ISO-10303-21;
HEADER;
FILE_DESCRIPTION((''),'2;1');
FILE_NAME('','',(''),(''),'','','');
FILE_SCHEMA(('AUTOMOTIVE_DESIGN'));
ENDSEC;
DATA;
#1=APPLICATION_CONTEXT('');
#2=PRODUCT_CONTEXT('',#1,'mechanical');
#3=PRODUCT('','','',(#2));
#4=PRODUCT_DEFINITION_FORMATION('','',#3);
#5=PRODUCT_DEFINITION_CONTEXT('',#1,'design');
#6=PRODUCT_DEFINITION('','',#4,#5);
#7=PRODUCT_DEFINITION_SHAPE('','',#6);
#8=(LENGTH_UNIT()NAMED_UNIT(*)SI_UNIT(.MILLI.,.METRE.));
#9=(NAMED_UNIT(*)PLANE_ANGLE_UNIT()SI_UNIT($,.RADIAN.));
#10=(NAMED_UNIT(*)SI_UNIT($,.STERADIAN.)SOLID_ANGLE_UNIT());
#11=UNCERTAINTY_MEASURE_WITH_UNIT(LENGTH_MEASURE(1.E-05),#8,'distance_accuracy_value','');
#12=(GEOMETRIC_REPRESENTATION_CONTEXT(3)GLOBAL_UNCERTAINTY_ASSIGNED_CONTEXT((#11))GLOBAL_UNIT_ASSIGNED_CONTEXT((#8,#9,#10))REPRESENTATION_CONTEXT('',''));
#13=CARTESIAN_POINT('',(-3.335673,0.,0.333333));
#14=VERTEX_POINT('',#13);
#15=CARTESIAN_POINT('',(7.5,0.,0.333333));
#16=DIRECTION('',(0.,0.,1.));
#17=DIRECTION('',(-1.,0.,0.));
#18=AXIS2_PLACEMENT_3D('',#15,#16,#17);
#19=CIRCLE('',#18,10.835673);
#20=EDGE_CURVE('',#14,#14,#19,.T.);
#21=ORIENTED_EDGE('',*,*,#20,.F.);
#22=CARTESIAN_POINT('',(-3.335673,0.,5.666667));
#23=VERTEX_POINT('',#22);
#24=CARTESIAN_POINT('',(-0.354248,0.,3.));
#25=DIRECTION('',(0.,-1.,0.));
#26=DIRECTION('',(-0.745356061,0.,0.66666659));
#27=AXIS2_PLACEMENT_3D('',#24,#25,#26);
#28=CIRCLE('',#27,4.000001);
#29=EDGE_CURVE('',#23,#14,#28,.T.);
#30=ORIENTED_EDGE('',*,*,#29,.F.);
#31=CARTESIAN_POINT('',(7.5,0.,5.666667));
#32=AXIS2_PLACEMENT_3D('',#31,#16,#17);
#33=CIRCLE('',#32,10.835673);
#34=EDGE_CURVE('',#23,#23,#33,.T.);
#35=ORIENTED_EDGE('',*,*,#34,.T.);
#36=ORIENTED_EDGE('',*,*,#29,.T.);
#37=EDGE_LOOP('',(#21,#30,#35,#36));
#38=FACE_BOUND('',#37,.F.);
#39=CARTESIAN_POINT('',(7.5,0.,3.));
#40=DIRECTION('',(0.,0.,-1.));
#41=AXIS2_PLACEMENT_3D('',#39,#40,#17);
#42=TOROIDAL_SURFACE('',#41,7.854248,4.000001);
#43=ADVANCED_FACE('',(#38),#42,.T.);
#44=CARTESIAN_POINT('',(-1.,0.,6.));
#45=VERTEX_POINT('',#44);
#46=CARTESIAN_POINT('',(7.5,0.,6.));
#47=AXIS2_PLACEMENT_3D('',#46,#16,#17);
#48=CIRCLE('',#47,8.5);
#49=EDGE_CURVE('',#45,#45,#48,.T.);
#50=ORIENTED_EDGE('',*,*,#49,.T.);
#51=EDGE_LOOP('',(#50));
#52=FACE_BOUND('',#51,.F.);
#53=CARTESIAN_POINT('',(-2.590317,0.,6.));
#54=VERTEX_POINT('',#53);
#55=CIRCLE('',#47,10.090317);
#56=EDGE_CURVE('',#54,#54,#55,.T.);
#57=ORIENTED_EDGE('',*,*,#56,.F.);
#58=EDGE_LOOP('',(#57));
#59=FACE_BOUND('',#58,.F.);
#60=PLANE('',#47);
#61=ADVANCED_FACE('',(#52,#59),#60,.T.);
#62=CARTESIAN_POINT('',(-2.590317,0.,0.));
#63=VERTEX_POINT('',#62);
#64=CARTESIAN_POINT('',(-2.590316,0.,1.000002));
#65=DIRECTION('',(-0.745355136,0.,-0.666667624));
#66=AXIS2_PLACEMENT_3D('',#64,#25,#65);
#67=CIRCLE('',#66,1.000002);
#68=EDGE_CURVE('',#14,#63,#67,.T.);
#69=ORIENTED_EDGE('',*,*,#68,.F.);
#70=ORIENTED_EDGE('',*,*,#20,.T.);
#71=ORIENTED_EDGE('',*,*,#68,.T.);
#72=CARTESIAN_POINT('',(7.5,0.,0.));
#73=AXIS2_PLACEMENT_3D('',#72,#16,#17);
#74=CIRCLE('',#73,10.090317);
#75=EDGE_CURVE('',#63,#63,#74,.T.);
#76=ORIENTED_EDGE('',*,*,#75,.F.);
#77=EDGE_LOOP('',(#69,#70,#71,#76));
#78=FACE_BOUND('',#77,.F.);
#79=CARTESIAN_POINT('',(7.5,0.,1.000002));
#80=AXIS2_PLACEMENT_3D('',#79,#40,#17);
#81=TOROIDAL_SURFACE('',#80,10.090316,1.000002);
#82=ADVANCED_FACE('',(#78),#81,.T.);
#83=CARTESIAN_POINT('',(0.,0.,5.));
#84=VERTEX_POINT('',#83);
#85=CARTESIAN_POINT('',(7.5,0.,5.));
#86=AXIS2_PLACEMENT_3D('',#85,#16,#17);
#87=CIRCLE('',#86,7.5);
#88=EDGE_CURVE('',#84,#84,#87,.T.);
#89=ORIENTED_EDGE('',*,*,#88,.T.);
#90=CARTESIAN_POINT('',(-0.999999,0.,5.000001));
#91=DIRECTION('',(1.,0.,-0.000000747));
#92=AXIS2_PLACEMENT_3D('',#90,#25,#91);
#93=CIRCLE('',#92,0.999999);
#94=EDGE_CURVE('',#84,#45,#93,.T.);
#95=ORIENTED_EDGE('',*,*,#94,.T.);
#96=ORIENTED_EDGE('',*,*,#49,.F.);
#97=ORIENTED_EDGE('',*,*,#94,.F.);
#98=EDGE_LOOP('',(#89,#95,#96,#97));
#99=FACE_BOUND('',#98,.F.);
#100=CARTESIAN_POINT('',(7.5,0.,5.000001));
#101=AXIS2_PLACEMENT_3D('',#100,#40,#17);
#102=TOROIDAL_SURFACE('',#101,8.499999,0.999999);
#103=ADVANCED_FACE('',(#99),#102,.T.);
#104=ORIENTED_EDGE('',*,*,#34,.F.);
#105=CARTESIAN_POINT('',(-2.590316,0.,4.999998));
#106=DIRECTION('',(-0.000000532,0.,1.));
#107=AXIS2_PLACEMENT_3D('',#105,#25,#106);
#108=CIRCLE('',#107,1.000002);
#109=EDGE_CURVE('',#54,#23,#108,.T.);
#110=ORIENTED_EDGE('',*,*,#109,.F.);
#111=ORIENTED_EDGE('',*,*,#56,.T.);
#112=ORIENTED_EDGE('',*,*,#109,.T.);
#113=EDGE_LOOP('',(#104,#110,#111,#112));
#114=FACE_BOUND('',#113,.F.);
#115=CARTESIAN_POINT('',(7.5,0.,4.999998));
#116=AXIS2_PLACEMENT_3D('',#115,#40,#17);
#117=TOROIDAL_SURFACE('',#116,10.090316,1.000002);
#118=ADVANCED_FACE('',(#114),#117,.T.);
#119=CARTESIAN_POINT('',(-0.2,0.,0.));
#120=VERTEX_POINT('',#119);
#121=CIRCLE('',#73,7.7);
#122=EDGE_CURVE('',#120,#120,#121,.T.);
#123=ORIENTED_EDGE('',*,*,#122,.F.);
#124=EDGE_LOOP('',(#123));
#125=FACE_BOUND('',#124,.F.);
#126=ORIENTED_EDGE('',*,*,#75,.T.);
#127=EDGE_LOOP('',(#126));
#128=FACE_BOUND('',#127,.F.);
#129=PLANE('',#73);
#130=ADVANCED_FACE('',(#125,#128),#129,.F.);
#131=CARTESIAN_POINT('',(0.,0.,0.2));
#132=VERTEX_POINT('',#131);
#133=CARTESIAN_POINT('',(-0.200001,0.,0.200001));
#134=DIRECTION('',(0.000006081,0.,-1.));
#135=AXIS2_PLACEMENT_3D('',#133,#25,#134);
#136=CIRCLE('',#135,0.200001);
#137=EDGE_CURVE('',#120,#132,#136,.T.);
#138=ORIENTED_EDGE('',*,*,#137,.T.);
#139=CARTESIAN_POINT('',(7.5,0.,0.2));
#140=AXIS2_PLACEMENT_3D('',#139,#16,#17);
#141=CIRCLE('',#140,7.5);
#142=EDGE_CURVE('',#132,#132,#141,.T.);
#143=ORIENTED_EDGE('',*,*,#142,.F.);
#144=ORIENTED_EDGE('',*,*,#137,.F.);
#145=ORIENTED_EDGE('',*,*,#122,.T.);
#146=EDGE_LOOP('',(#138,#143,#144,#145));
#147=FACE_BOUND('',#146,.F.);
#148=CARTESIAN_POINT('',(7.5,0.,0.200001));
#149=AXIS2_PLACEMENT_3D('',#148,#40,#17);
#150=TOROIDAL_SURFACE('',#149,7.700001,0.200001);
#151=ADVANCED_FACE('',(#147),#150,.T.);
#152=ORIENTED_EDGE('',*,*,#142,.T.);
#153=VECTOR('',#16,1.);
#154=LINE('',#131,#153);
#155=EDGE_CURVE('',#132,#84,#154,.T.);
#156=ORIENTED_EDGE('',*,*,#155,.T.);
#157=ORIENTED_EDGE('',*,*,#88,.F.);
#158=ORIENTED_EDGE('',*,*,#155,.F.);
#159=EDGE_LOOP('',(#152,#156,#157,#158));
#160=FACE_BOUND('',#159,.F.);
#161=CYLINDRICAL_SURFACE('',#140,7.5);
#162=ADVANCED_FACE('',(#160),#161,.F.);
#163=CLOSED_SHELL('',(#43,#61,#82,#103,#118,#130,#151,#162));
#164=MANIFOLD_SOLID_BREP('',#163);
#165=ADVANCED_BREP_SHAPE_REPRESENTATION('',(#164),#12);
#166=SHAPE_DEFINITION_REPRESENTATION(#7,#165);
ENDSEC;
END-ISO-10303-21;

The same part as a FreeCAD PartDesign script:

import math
import FreeCAD as App
import Part
import Sketcher

doc = App.newDocument("Part")
body = doc.addObject("PartDesign::Body", "Body")

sketch1 = doc.addObject("Sketcher::SketchObject", "Sketch")
body.addObject(sketch1)
sketch1.AttachmentSupport = (doc.XZ_Plane, [""])
sketch1.MapMode = "FlatFace"
sketch1.addGeometry(Part.ArcOfCircle(Part.Circle(App.Vector(-0.2, 0.2, 0), App.Vector(0, 0, 1), 0.2), math.radians(-90), math.radians(0)), False)
sketch1.addGeometry(Part.LineSegment(App.Vector(0, 0.2, 0), App.Vector(0, 5, 0)), False)
sketch1.addGeometry(Part.ArcOfCircle(Part.Circle(App.Vector(-1, 5, 0), App.Vector(0, 0, 1), 1), math.radians(0), math.radians(90)), False)
sketch1.addGeometry(Part.LineSegment(App.Vector(-1, 6, 0), App.Vector(-2.59, 6, 0)), False)
sketch1.addGeometry(Part.ArcOfCircle(Part.Circle(App.Vector(-2.59, 5, 0), App.Vector(0, 0, 1), 1), math.radians(90), math.radians(138)), False)
sketch1.addGeometry(Part.ArcOfCircle(Part.Circle(App.Vector(-0.35, 3, 0), App.Vector(0, 0, 1), 4), math.radians(138), math.radians(222)), False)
sketch1.addGeometry(Part.ArcOfCircle(Part.Circle(App.Vector(-2.59, 1, 0), App.Vector(0, 0, 1), 1), math.radians(-138), math.radians(-90)), False)
sketch1.addGeometry(Part.LineSegment(App.Vector(-2.59, 0, 0), App.Vector(-0.2, 0, 0)), False)
sketch1.addGeometry(Part.LineSegment(App.Vector(7.5, 0, 0), App.Vector(7.5, 6, 0)), True)
sketch1.addConstraint(Sketcher.Constraint("Coincident", 0, 2, 1, 1))
sketch1.addConstraint(Sketcher.Constraint("Tangent", 1, 2, 2, 1))
sketch1.addConstraint(Sketcher.Constraint("Tangent", 2, 2, 3, 1))
sketch1.addConstraint(Sketcher.Constraint("Tangent", 3, 2, 4, 1))
sketch1.addConstraint(Sketcher.Constraint("Tangent", 4, 2, 5, 1))
sketch1.addConstraint(Sketcher.Constraint("Tangent", 5, 2, 6, 1))
sketch1.addConstraint(Sketcher.Constraint("Tangent", 6, 2, 7, 1))
sketch1.addConstraint(Sketcher.Constraint("Coincident", 7, 2, 0, 1))
sketch1.addConstraint(Sketcher.Constraint("Vertical", 1))
sketch1.addConstraint(Sketcher.Constraint("Horizontal", 3))
sketch1.addConstraint(Sketcher.Constraint("Horizontal", 7))
sketch1.addConstraint(Sketcher.Constraint("Vertical", 8))
sketch1.addConstraint(Sketcher.Constraint("Equal", 4, 6))
sketch1.addConstraint(Sketcher.Constraint("PointOnObject", 0, 2, -2))
sketch1.addConstraint(Sketcher.Constraint("PointOnObject", 6, 2, -1))
sketch1.addConstraint(Sketcher.Constraint("PointOnObject", 8, 1, -1))
sketch1.addConstraint(Sketcher.Constraint("Horizontal", 4, 3, 1, 2))
sketch1.addConstraint(Sketcher.Constraint("Horizontal", 3, 2, 8, 2))
sketch1.addConstraint(Sketcher.Constraint("Vertical", 4, 3, 6, 3))
sketch1.addConstraint(Sketcher.Constraint("Vertical", 0, 3, 7, 2))
sketch1.addConstraint(Sketcher.Constraint("Radius", 2, 0.999999))
sketch1.addConstraint(Sketcher.Constraint("Radius", 5, 4.000001))
sketch1.addConstraint(Sketcher.Constraint("Radius", 0, 0.200001))
sketch1.addConstraint(Sketcher.Constraint("DistanceY", 8, 1, 8, 2, 6.0))
sketch1.addConstraint(Sketcher.Constraint("DistanceY", 1, 1, 1, 2, 4.8))
sketch1.addConstraint(Sketcher.Constraint("DistanceX", -1, 1, 8, 1, 7.5))
sketch1.addConstraint(Sketcher.Constraint("DistanceX", 3, 2, 3, 1, 1.590317))
revolution = doc.addObject("PartDesign::Revolution", "Revolution")
body.addObject(revolution)
revolution.Profile = sketch1
revolution.ReferenceAxis = (sketch1, ["Axis0"])
revolution.Angle = 360

doc.recompute()
